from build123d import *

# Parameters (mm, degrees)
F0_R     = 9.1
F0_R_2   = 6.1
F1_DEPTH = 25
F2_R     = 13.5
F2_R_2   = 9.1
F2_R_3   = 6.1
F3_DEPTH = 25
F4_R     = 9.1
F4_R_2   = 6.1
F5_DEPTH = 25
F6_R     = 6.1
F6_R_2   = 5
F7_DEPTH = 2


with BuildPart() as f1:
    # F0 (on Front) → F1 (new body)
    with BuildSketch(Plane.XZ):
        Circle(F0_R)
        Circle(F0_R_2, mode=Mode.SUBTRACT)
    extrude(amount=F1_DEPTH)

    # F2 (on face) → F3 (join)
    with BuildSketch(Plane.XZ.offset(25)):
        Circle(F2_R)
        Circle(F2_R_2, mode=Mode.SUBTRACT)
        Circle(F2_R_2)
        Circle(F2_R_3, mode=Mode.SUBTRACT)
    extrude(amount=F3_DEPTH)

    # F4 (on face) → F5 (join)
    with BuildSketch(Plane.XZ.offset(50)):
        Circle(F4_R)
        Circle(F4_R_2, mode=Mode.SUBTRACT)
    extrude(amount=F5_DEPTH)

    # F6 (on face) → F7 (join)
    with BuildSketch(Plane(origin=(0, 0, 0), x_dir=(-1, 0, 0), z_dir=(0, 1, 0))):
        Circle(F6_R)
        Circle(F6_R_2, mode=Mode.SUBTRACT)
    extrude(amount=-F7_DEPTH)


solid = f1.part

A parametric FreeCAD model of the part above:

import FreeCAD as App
import Part
import Sketcher

V = App.Vector
Q = App.Units.Quantity

doc = App.newDocument("Part")
body = doc.addObject("PartDesign::Body", "Body")

# Sketch on XZ plane
sketch1 = doc.addObject("Sketcher::SketchObject", "Sketch")
body.addObject(sketch1)
sketch1.AttachmentSupport = (doc.XZ_Plane, [""])
sketch1.MapMode = "FlatFace"
sketch1.addGeometry([
    Part.Circle(V(0, 0, 0), V(0, 0, 1), 9),
    Part.Circle(V(0, 0, 0), V(0, 0, 1), 6),
], False)
sketch1.addConstraint([
    Sketcher.Constraint("Coincident", 0, 3, -1, 1),
    Sketcher.Constraint("Coincident", 1, 3, -1, 1),
    Sketcher.Constraint("Diameter", 0, Q("18.2 mm")),
    Sketcher.Constraint("Diameter", 1, Q("12.2 mm")),
])
pad1 = doc.addObject("PartDesign::Pad", "Pad")
body.addObject(pad1)
pad1.Profile = sketch1
pad1.Length = 25

# Sketch on XZ plane
sketch2 = doc.addObject("Sketcher::SketchObject", "Sketch001")
body.addObject(sketch2)
sketch2.AttachmentSupport = (doc.XZ_Plane, [""])
sketch2.MapMode = "FlatFace"
sketch2.AttachmentOffset = App.Placement(V(0, 0, 25), App.Rotation())
sketch2.addGeometry([
    Part.Circle(V(0, 0, 0), V(0, 0, 1), 14),
    Part.Circle(V(0, 0, 0), V(0, 0, 1), 6),
], False)
sketch2.addConstraint([
    Sketcher.Constraint("Coincident", 0, 3, -1, 1),
    Sketcher.Constraint("Coincident", 1, 3, -1, 1),
    Sketcher.Constraint("Diameter", 0, Q("27 mm")),
    Sketcher.Constraint("Diameter", 1, Q("12.2 mm")),
])
pad2 = doc.addObject("PartDesign::Pad", "Pad001")
body.addObject(pad2)
pad2.Profile = sketch2
pad2.Length = 25

# Sketch on XZ plane
sketch3 = doc.addObject("Sketcher::SketchObject", "Sketch002")
body.addObject(sketch3)
sketch3.AttachmentSupport = (doc.XZ_Plane, [""])
sketch3.MapMode = "FlatFace"
sketch3.AttachmentOffset = App.Placement(V(0, 0, 50), App.Rotation())
sketch3.addGeometry([
    Part.Circle(V(0, 0, 0), V(0, 0, 1), 9),
    Part.Circle(V(0, 0, 0), V(0, 0, 1), 6),
], False)
sketch3.addConstraint([
    Sketcher.Constraint("Coincident", 0, 3, -1, 1),
    Sketcher.Constraint("Coincident", 1, 3, -1, 1),
    Sketcher.Constraint("Diameter", 0, Q("18.2 mm")),
    Sketcher.Constraint("Diameter", 1, Q("12.2 mm")),
])
pad3 = doc.addObject("PartDesign::Pad", "Pad002")
body.addObject(pad3)
pad3.Profile = sketch3
pad3.Length = 25

# Sketch on XZ plane
sketch4 = doc.addObject("Sketcher::SketchObject", "Sketch003")
body.addObject(sketch4)
sketch4.AttachmentSupport = (doc.XZ_Plane, [""])
sketch4.MapMode = "FlatFace"
sketch4.addGeometry([
    Part.Circle(V(0, 0, 0), V(0, 0, 1), 6),
    Part.Circle(V(0, 0, 0), V(0, 0, 1), 5),
], False)
sketch4.addConstraint([
    Sketcher.Constraint("Coincident", 0, 3, -1, 1),
    Sketcher.Constraint("Coincident", 1, 3, -1, 1),
    Sketcher.Constraint("Diameter", 1, Q("10 mm")),
    Sketcher.Constraint("Diameter", 0, Q("12.2 mm")),
])
pad4 = doc.addObject("PartDesign::Pad", "Pad003")
body.addObject(pad4)
pad4.Profile = sketch4
pad4.Length = 2

doc.recompute()
